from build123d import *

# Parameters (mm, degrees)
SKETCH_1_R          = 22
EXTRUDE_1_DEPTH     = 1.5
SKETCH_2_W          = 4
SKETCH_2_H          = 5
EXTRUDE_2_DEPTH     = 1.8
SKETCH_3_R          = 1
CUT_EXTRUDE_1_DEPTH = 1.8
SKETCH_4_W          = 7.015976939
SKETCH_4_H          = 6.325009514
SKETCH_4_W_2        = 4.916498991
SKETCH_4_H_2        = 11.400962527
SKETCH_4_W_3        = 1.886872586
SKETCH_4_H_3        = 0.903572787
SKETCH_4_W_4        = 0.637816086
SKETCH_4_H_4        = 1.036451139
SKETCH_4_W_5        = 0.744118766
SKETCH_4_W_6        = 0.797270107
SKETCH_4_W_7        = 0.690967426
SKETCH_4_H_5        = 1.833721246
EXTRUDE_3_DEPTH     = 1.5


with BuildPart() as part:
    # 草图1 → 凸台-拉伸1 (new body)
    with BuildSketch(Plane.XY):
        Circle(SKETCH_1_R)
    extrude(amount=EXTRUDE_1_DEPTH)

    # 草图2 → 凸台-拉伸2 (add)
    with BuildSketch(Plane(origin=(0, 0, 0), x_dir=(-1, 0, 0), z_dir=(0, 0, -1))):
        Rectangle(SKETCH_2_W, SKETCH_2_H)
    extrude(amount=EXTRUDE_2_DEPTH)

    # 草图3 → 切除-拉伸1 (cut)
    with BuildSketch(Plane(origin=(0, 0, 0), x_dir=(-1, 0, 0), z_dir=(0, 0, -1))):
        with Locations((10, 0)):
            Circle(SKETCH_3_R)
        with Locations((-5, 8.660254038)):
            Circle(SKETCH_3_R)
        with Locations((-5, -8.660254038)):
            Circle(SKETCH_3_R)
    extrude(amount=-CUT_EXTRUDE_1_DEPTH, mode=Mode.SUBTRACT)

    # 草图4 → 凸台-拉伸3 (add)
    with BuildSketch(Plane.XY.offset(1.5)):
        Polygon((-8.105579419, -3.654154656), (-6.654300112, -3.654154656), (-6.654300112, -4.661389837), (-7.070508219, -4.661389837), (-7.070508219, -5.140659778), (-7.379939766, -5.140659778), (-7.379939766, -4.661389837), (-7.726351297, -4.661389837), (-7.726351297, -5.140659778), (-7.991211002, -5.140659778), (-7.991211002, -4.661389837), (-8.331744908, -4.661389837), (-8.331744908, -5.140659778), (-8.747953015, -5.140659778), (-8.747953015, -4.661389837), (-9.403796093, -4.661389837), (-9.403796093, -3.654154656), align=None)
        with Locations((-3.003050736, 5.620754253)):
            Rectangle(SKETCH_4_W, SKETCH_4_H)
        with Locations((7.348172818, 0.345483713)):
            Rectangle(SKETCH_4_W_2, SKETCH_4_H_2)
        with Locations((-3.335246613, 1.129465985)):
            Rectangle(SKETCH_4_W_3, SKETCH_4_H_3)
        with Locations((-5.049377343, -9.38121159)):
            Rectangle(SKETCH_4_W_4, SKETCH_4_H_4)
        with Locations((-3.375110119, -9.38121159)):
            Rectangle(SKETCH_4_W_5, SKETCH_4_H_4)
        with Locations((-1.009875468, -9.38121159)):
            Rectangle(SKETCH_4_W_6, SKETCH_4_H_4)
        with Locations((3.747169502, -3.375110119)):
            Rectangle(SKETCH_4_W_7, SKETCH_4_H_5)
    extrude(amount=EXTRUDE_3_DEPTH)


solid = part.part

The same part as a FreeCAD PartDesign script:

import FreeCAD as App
import Part
import Sketcher

V = App.Vector
Q = App.Units.Quantity

doc = App.newDocument("Part")
params = doc.addObject("Spreadsheet::Sheet", "Params")
for row, (alias, value) in enumerate([
    ("sketch1_diameter", "44 mm"),
    ("pad1_length", "1.5 mm"),
    ("sketch2_width", "4 mm"),
    ("sketch2_height", "5 mm"),
    ("pad2_length", "1.8 mm"),
    ("sketch3_diameter", "2 mm"),
    ("pocket1_length", "1.8 mm"),
    ("pad3_length", "1.5 mm"),
], start=1):
    params.set(f"A{row}", alias)
    params.set(f"B{row}", "=" + value)
    params.setAlias(f"B{row}", alias)

body = doc.addObject("PartDesign::Body", "Body")

# Sketch on XY plane
sketch1 = body.newObject("Sketcher::SketchObject", "Sketch")
sketch1.AttachmentSupport = (doc.getObject("XY_Plane"), [""])
sketch1.MapMode = "FlatFace"
sketch1.addGeometry(Part.Circle(V(0, 0, 0), V(0, 0, 1), 22), False)
sketch1.addConstraint(Sketcher.Constraint("Coincident", 0, 3, -1, 1))
sketch1.addConstraint(Sketcher.Constraint("Diameter", 0, Q("44 mm")))
sketch1.setExpression("Constraints[1]", "Params.sketch1_diameter")
pad1 = body.newObject("PartDesign::Pad", "Pad")
pad1.Profile = sketch1
pad1.setExpression("Length", "Params.pad1_length")

# Sketch on XY plane
sketch2 = body.newObject("Sketcher::SketchObject", "Sketch001")
sketch2.AttachmentSupport = (doc.getObject("XY_Plane"), [""])
sketch2.MapMode = "FlatFace"
sketch2.addGeometry(Part.LineSegment(V(2, 2.5, 0), V(2, -2.5, 0)), False)
sketch2.addGeometry(Part.LineSegment(V(2, -2.5, 0), V(-2, -2.5, 0)), False)
sketch2.addGeometry(Part.LineSegment(V(-2, -2.5, 0), V(-2, 2.5, 0)), False)
sketch2.addGeometry(Part.LineSegment(V(-2, 2.5, 0), V(2, 2.5, 0)), False)
sketch2.addConstraint(Sketcher.Constraint("Coincident", 0, 2, 1, 1))
sketch2.addConstraint(Sketcher.Constraint("Coincident", 1, 2, 2, 1))
sketch2.addConstraint(Sketcher.Constraint("Coincident", 2, 2, 3, 1))
sketch2.addConstraint(Sketcher.Constraint("Coincident", 3, 2, 0, 1))
sketch2.addConstraint(Sketcher.Constraint("Vertical", 0))
sketch2.addConstraint(Sketcher.Constraint("Horizontal", 1))
sketch2.addConstraint(Sketcher.Constraint("Vertical", 2))
sketch2.addConstraint(Sketcher.Constraint("Horizontal", 3))
sketch2.addConstraint(Sketcher.Constraint("Symmetric", 0, 2, 2, 2, -1, 1))
sketch2.addConstraint(Sketcher.Constraint("DistanceX", 1, 2, 1, 1, Q("4 mm")))
sketch2.addConstraint(Sketcher.Constraint("DistanceY", 0, 2, 0, 1, Q("5 mm")))
sketch2.setExpression("Constraints[9]", "Params.sketch2_width")
sketch2.setExpression("Constraints[10]", "Params.sketch2_height")
pad2 = body.newObject("PartDesign::Pad", "Pad001")
pad2.Profile = sketch2
pad2.setExpression("Length", "Params.pad2_length")
pad2.Reversed = True

# Sketch on XY plane
sketch3 = body.newObject("Sketcher::SketchObject", "Sketch002")
sketch3.AttachmentSupport = (doc.getObject("XY_Plane"), [""])
sketch3.MapMode = "FlatFace"
sketch3.addGeometry(Part.Circle(V(-10, 0, 0), V(0, 0, 1), 1), False)
sketch3.addGeometry(Part.Circle(V(5, 8.7, 0), V(0, 0, 1), 1), False)
sketch3.addGeometry(Part.Circle(V(5, -8.7, 0), V(0, 0, 1), 1), False)
sketch3.addConstraint(Sketcher.Constraint("Equal", 0, 1))
sketch3.addConstraint(Sketcher.Constraint("Equal", 1, 2))
sketch3.addConstraint(Sketcher.Constraint("Symmetric", 1, 3, 2, 3, -1))
sketch3.addConstraint(Sketcher.Constraint("PointOnObject", 0, 3, -1))
sketch3.addConstraint(Sketcher.Constraint("Diameter", 0, Q("2 mm")))
sketch3.addConstraint(Sketcher.Constraint("DistanceX", 0, 3, -1, 1, Q("10 mm")))
sketch3.addConstraint(Sketcher.Constraint("DistanceX", -1, 1, 1, 3, Q("5 mm")))
sketch3.addConstraint(Sketcher.Constraint("DistanceY", 2, 3, 1, 3, Q("17.320508 mm")))
sketch3.setExpression("Constraints[4]", "Params.sketch3_diameter")
pocket1 = body.newObject("PartDesign::Pocket", "Pocket")
pocket1.Profile = sketch3
pocket1.setExpression("Length", "Params.pocket1_length")
pocket1.Reversed = True

# Sketch on XY plane
sketch4 = body.newObject("Sketcher::SketchObject", "Sketch003")
sketch4.AttachmentSupport = (doc.getObject("XY_Plane"), [""])
sketch4.MapMode = "FlatFace"
sketch4.AttachmentOffset = App.Placement(V(0, 0, 1.5), App.Rotation())
sketch4.addGeometry(Part.LineSegment(V(-6.65, -3.65, 0), V(-9.4, -3.65, 0)), False)
sketch4.addGeometry(Part.LineSegment(V(-9.4, -3.65, 0), V(-9.4, -4.66, 0)), False)
sketch4.addGeometry(Part.LineSegment(V(-9.4, -4.66, 0), V(-8.75, -4.66, 0)), False)
sketch4.addGeometry(Part.LineSegment(V(-8.75, -4.66, 0), V(-8.75, -5.14, 0)), False)
sketch4.addGeometry(Part.LineSegment(V(-8.75, -5.14, 0), V(-8.33, -5.14, 0)), False)
sketch4.addGeometry(Part.LineSegment(V(-8.33, -5.14, 0), V(-8.33, -4.66, 0)), False)
sketch4.addGeometry(Part.LineSegment(V(-8.33, -4.66, 0), V(-7.99, -4.66, 0)), False)
sketch4.addGeometry(Part.LineSegment(V(-7.99, -4.66, 0), V(-7.99, -5.14, 0)), False)
sketch4.addGeometry(Part.LineSegment(V(-7.99, -5.14, 0), V(-7.73, -5.14, 0)), False)
sketch4.addGeometry(Part.LineSegment(V(-7.73, -5.14, 0), V(-7.73, -4.66, 0)), False)
sketch4.addGeometry(Part.LineSegment(V(-7.73, -4.66, 0), V(-7.38, -4.66, 0)), False)
sketch4.addGeometry(Part.LineSegment(V(-7.38, -4.66, 0), V(-7.38, -5.14, 0)), False)
sketch4.addGeometry(Part.LineSegment(V(-7.38, -5.14, 0), V(-7.07, -5.14, 0)), False)
sketch4.addGeometry(Part.LineSegment(V(-7.07, -5.14, 0), V(-7.07, -4.66, 0)), False)
sketch4.addGeometry(Part.LineSegment(V(-7.07, -4.66, 0), V(-6.65, -4.66, 0)), False)
sketch4.addGeometry(Part.LineSegment(V(-6.65, -4.66, 0), V(-6.65, -3.65, 0)), False)
sketch4.addGeometry(Part.LineSegment(V(-6.51, 8.78, 0), V(-6.51, 2.46, 0)), False)
sketch4.addGeometry(Part.LineSegment(V(-6.51, 2.46, 0), V(0.5, 2.46, 0)), False)
sketch4.addGeometry(Part.LineSegment(V(0.5, 2.46, 0), V(0.5, 8.78, 0)), False)
sketch4.addGeometry(Part.LineSegment(V(0.5, 8.78, 0), V(-6.51, 8.78, 0)), False)
sketch4.addGeometry(Part.LineSegment(V(4.89, 6.05, 0), V(4.89, -5.35, 0)), False)
sketch4.addGeometry(Part.LineSegment(V(4.89, -5.35, 0), V(9.81, -5.35, 0)), False)
sketch4.addGeometry(Part.LineSegment(V(9.81, -5.35, 0), V(9.81, 6.05, 0)), False)
sketch4.addGeometry(Part.LineSegment(V(9.81, 6.05, 0), V(4.89, 6.05, 0)), False)
sketch4.addGeometry(Part.LineSegment(V(-4.28, 1.58, 0), V(-4.28, 0.68, 0)), False)
sketch4.addGeometry(Part.LineSegment(V(-4.28, 0.68, 0), V(-2.39, 0.68, 0)), False)
sketch4.addGeometry(Part.LineSegment(V(-2.39, 0.68, 0), V(-2.39, 1.58, 0)), False)
sketch4.addGeometry(Part.LineSegment(V(-2.39, 1.58, 0), V(-4.28, 1.58, 0)), False)
sketch4.addGeometry(Part.LineSegment(V(-5.37, -8.86, 0), V(-5.37, -9.9, 0)), False)
sketch4.addGeometry(Part.LineSegment(V(-5.37, -9.9, 0), V(-4.73, -9.9, 0)), False)
sketch4.addGeometry(Part.LineSegment(V(-4.73, -9.9, 0), V(-4.73, -8.86, 0)), False)
sketch4.addGeometry(Part.LineSegment(V(-4.73, -8.86, 0), V(-5.37, -8.86, 0)), False)
sketch4.addGeometry(Part.LineSegment(V(-3.75, -8.86, 0), V(-3.75, -9.9, 0)), False)
sketch4.addGeometry(Part.LineSegment(V(-3.75, -9.9, 0), V(-3, -9.9, 0)), False)
sketch4.addGeometry(Part.LineSegment(V(-3, -9.9, 0), V(-3, -8.86, 0)), False)
sketch4.addGeometry(Part.LineSegment(V(-3, -8.86, 0), V(-3.75, -8.86, 0)), False)
sketch4.addGeometry(Part.LineSegment(V(-1.41, -8.86, 0), V(-1.41, -9.9, 0)), False)
sketch4.addGeometry(Part.LineSegment(V(-1.41, -9.9, 0), V(-0.61, -9.9, 0)), False)
sketch4.addGeometry(Part.LineSegment(V(-0.61, -9.9, 0), V(-0.61, -8.86, 0)), False)
sketch4.addGeometry(Part.LineSegment(V(-0.61, -8.86, 0), V(-1.41, -8.86, 0)), False)
sketch4.addGeometry(Part.LineSegment(V(3.4, -2.46, 0), V(3.4, -4.29, 0)), False)
sketch4.addGeometry(Part.LineSegment(V(3.4, -4.29, 0), V(4.09, -4.29, 0)), False)
sketch4.addGeometry(Part.LineSegment(V(4.09, -4.29, 0), V(4.09, -2.46, 0)), False)
sketch4.addGeometry(Part.LineSegment(V(4.09, -2.46, 0), V(3.4, -2.46, 0)), False)
sketch4.addConstraint(Sketcher.Constraint("Coincident", 0, 2, 1, 1))
sketch4.addConstraint(Sketcher.Constraint("Coincident", 1, 2, 2, 1))
sketch4.addConstraint(Sketcher.Constraint("Coincident", 2, 2, 3, 1))
sketch4.addConstraint(Sketcher.Constraint("Coincident", 3, 2, 4, 1))
sketch4.addConstraint(Sketcher.Constraint("Coincident", 4, 2, 5, 1))
sketch4.addConstraint(Sketcher.Constraint("Coincident", 5, 2, 6, 1))
sketch4.addConstraint(Sketcher.Constraint("Coincident", 6, 2, 7, 1))
sketch4.addConstraint(Sketcher.Constraint("Coincident", 7, 2, 8, 1))
sketch4.addConstraint(Sketcher.Constraint("Coincident", 8, 2, 9, 1))
sketch4.addConstraint(Sketcher.Constraint("Coincident", 9, 2, 10, 1))
sketch4.addConstraint(Sketcher.Constraint("Coincident", 10, 2, 11, 1))
sketch4.addConstraint(Sketcher.Constraint("Coincident", 11, 2, 12, 1))
sketch4.addConstraint(Sketcher.Constraint("Coincident", 12, 2, 13, 1))
sketch4.addConstraint(Sketcher.Constraint("Coincident", 13, 2, 14, 1))
sketch4.addConstraint(Sketcher.Constraint("Coincident", 14, 2, 15, 1))
sketch4.addConstraint(Sketcher.Constraint("Coincident", 15, 2, 0, 1))
sketch4.addConstraint(Sketcher.Constraint("Coincident", 16, 2, 17, 1))
sketch4.addConstraint(Sketcher.Constraint("Coincident", 17, 2, 18, 1))
sketch4.addConstraint(Sketcher.Constraint("Coincident", 18, 2, 19, 1))
sketch4.addConstraint(Sketcher.Constraint("Coincident", 19, 2, 16, 1))
sketch4.addConstraint(Sketcher.Constraint("Coincident", 20, 2, 21, 1))
sketch4.addConstraint(Sketcher.Constraint("Coincident", 21, 2, 22, 1))
sketch4.addConstraint(Sketcher.Constraint("Coincident", 22, 2, 23, 1))
sketch4.addConstraint(Sketcher.Constraint("Coincident", 23, 2, 20, 1))
sketch4.addConstraint(Sketcher.Constraint("Coincident", 24, 2, 25, 1))
sketch4.addConstraint(Sketcher.Constraint("Coincident", 25, 2, 26, 1))
sketch4.addConstraint(Sketcher.Constraint("Coincident", 26, 2, 27, 1))
sketch4.addConstraint(Sketcher.Constraint("Coincident", 27, 2, 24, 1))
sketch4.addConstraint(Sketcher.Constraint("Coincident", 28, 2, 29, 1))
sketch4.addConstraint(Sketcher.Constraint("Coincident", 29, 2, 30, 1))
sketch4.addConstraint(Sketcher.Constraint("Coincident", 30, 2, 31, 1))
sketch4.addConstraint(Sketcher.Constraint("Coincident", 31, 2, 28, 1))
sketch4.addConstraint(Sketcher.Constraint("Coincident", 32, 2, 33, 1))
sketch4.addConstraint(Sketcher.Constraint("Coincident", 33, 2, 34, 1))
sketch4.addConstraint(Sketcher.Constraint("Coincident", 34, 2, 35, 1))
sketch4.addConstraint(Sketcher.Constraint("Coincident", 35, 2, 32, 1))
sketch4.addConstraint(Sketcher.Constraint("Coincident", 36, 2, 37, 1))
sketch4.addConstraint(Sketcher.Constraint("Coincident", 37, 2, 38, 1))
sketch4.addConstraint(Sketcher.Constraint("Coincident", 38, 2, 39, 1))
sketch4.addConstraint(Sketcher.Constraint("Coincident", 39, 2, 36, 1))
sketch4.addConstraint(Sketcher.Constraint("Coincident", 40, 2, 41, 1))
sketch4.addConstraint(Sketcher.Constraint("Coincident", 41, 2, 42, 1))
sketch4.addConstraint(Sketcher.Constraint("Coincident", 42, 2, 43, 1))
sketch4.addConstraint(Sketcher.Constraint("Coincident", 43, 2, 40, 1))
sketch4.addConstraint(Sketcher.Constraint("Horizontal", 0))
sketch4.addConstraint(Sketcher.Constraint("Vertical", 1))
sketch4.addConstraint(Sketcher.Constraint("Horizontal", 2))
sketch4.addConstraint(Sketcher.Constraint("Vertical", 3))
sketch4.addConstraint(Sketcher.Constraint("Horizontal", 4))
sketch4.addConstraint(Sketcher.Constraint("Vertical", 5))
sketch4.addConstraint(Sketcher.Constraint("Horizontal", 6))
sketch4.addConstraint(Sketcher.Constraint("Vertical", 7))
sketch4.addConstraint(Sketcher.Constraint("Horizontal", 8))
sketch4.addConstraint(Sketcher.Constraint("Vertical", 9))
sketch4.addConstraint(Sketcher.Constraint("Horizontal", 10))
sketch4.addConstraint(Sketcher.Constraint("Vertical", 11))
sketch4.addConstraint(Sketcher.Constraint("Horizontal", 12))
sketch4.addConstraint(Sketcher.Constraint("Vertical", 13))
sketch4.addConstraint(Sketcher.Constraint("Horizontal", 14))
sketch4.addConstraint(Sketcher.Constraint("Vertical", 15))
sketch4.addConstraint(Sketcher.Constraint("Vertical", 16))
sketch4.addConstraint(Sketcher.Constraint("Horizontal", 17))
sketch4.addConstraint(Sketcher.Constraint("Vertical", 18))
sketch4.addConstraint(Sketcher.Constraint("Horizontal", 19))
sketch4.addConstraint(Sketcher.Constraint("Vertical", 20))
sketch4.addConstraint(Sketcher.Constraint("Horizontal", 21))
sketch4.addConstraint(Sketcher.Constraint("Vertical", 22))
sketch4.addConstraint(Sketcher.Constraint("Horizontal", 23))
sketch4.addConstraint(Sketcher.Constraint("Vertical", 24))
sketch4.addConstraint(Sketcher.Constraint("Horizontal", 25))
sketch4.addConstraint(Sketcher.Constraint("Vertical", 26))
sketch4.addConstraint(Sketcher.Constraint("Horizontal", 27))
sketch4.addConstraint(Sketcher.Constraint("Vertical", 28))
sketch4.addConstraint(Sketcher.Constraint("Horizontal", 29))
sketch4.addConstraint(Sketcher.Constraint("Vertical", 30))
sketch4.addConstraint(Sketcher.Constraint("Horizontal", 31))
sketch4.addConstraint(Sketcher.Constraint("Vertical", 32))
sketch4.addConstraint(Sketcher.Constraint("Horizontal", 33))
sketch4.addConstraint(Sketcher.Constraint("Vertical", 34))
sketch4.addConstraint(Sketcher.Constraint("Horizontal", 35))
sketch4.addConstraint(Sketcher.Constraint("Vertical", 36))
sketch4.addConstraint(Sketcher.Constraint("Horizontal", 37))
sketch4.addConstraint(Sketcher.Constraint("Vertical", 38))
sketch4.addConstraint(Sketcher.Constraint("Horizontal", 39))
sketch4.addConstraint(Sketcher.Constraint("Vertical", 40))
sketch4.addConstraint(Sketcher.Constraint("Horizontal", 41))
sketch4.addConstraint(Sketcher.Constraint("Vertical", 42))
sketch4.addConstraint(Sketcher.Constraint("Horizontal", 43))
sketch4.addConstraint(Sketcher.Constraint("Horizontal", 2, 2, 5, 2))
sketch4.addConstraint(Sketcher.Constraint("Horizontal", 4, 2, 7, 2))
sketch4.addConstraint(Sketcher.Constraint("Horizontal", 6, 2, 9, 2))
sketch4.addConstraint(Sketcher.Constraint("Horizontal", 8, 2, 11, 2))
sketch4.addConstraint(Sketcher.Constraint("Horizontal", 10, 2, 13, 2))
sketch4.addConstraint(Sketcher.Constraint("Horizontal", 29, 2, 32, 2))
sketch4.addConstraint(Sketcher.Constraint("Horizontal", 31, 2, 34, 2))
sketch4.addConstraint(Sketcher.Constraint("Horizontal", 33, 2, 36, 2))
sketch4.addConstraint(Sketcher.Constraint("Horizontal", 35, 2, 38, 2))
sketch4.addConstraint(Sketcher.Constraint("Equal", 4, 14))
sketch4.addConstraint(Sketcher.Constraint("DistanceX", 21, 1, 21, 2, Q("4.916499 mm")))
sketch4.addConstraint(Sketcher.Constraint("DistanceX", 4, 1, 4, 2, Q("0.416208 mm")))
sketch4.addConstraint(Sketcher.Constraint("DistanceX", 8, 1, 8, 2, Q("0.26486 mm")))
sketch4.addConstraint(Sketcher.Constraint("DistanceX", 10, 1, 10, 2, Q("0.346412 mm")))
sketch4.addConstraint(Sketcher.Constraint("DistanceX", 12, 1, 12, 2, Q("0.309432 mm")))
sketch4.addConstraint(Sketcher.Constraint("DistanceX", 33, 1, 33, 2, Q("0.744119 mm")))
sketch4.addConstraint(Sketcher.Constraint("DistanceX", 37, 1, 37, 2, Q("0.79727 mm")))
sketch4.addConstraint(Sketcher.Constraint("DistanceY", 3, 2, 3, 1, Q("0.47927 mm")))
sketch4.addConstraint(Sketcher.Constraint("DistanceY", 16, 2, 16, 1, Q("6.32501 mm")))
sketch4.addConstraint(Sketcher.Constraint("DistanceY", 28, 2, 28, 1, Q("1.036451 mm")))
sketch4.addConstraint(Sketcher.Constraint("DistanceY", 40, 2, 40, 1, Q("1.833721 mm")))
sketch4.addConstraint(Sketcher.Constraint("DistanceX", 14, 2, -1, 1, Q("6.6543 mm")))
sketch4.addConstraint(Sketcher.Constraint("DistanceX", 3, 2, 8, 2, Q("1.021602 mm")))
sketch4.addConstraint(Sketcher.Constraint("DistanceX", 10, 2, 16, 2, Q("0.868901 mm")))
sketch4.addConstraint(Sketcher.Constraint("DistanceX", 29, 2, 32, 2, Q("0.9833 mm")))
sketch4.addConstraint(Sketcher.Constraint("DistanceY", 42, 2, 17, 2, Q("4.916499 mm")))
sketch4.addConstraint(Sketcher.Constraint("DistanceX", 0, 2, 0, 1, Q("2.749496 mm")))
sketch4.addConstraint(Sketcher.Constraint("DistanceX", 17, 1, 17, 2, Q("7.015977 mm")))
sketch4.addConstraint(Sketcher.Constraint("DistanceX", 25, 1, 25, 2, Q("1.886873 mm")))
sketch4.addConstraint(Sketcher.Constraint("DistanceX", 29, 1, 29, 2, Q("0.637816 mm")))
sketch4.addConstraint(Sketcher.Constraint("DistanceX", 41, 1, 41, 2, Q("0.690967 mm")))
sketch4.addConstraint(Sketcher.Constraint("DistanceY", 1, 2, 1, 1, Q("1.007235 mm")))
sketch4.addConstraint(Sketcher.Constraint("DistanceY", 20, 2, 20, 1, Q("11.400963 mm")))
sketch4.addConstraint(Sketcher.Constraint("DistanceY", 24, 2, 24, 1, Q("0.903573 mm")))
sketch4.addConstraint(Sketcher.Constraint("DistanceY", 1, 2, -1, 1, Q("4.66139 mm")))
sketch4.addConstraint(Sketcher.Constraint("DistanceY", -1, 1, 16, 2, Q("2.458249 mm")))
sketch4.addConstraint(Sketcher.Constraint("DistanceY", -1, 1, 24, 2, Q("0.67768 mm")))
sketch4.addConstraint(Sketcher.Constraint("DistanceX", 25, 2, -1, 1, Q("2.39181 mm")))
sketch4.addConstraint(Sketcher.Constraint("DistanceX", 29, 2, -1, 1, Q("4.730469 mm")))
sketch4.addConstraint(Sketcher.Constraint("DistanceX", 36, 2, -1, 1, Q("1.408511 mm")))
sketch4.addConstraint(Sketcher.Constraint("DistanceX", 12, 2, 20, 2, Q("11.960432 mm")))
sketch4.addConstraint(Sketcher.Constraint("DistanceX", 41, 2, 20, 2, Q("0.79727 mm")))
sketch4.addConstraint(Sketcher.Constraint("DistanceY", 20, 2, 42, 2, Q("2.896748 mm")))
sketch4.addConstraint(Sketcher.Constraint("DistanceY", 28, 2, -1, 1, Q("9.899437 mm")))
pad3 = body.newObject("PartDesign::Pad", "Pad002")
pad3.Profile = sketch4
pad3.setExpression("Length", "Params.pad3_length")

doc.recompute()
